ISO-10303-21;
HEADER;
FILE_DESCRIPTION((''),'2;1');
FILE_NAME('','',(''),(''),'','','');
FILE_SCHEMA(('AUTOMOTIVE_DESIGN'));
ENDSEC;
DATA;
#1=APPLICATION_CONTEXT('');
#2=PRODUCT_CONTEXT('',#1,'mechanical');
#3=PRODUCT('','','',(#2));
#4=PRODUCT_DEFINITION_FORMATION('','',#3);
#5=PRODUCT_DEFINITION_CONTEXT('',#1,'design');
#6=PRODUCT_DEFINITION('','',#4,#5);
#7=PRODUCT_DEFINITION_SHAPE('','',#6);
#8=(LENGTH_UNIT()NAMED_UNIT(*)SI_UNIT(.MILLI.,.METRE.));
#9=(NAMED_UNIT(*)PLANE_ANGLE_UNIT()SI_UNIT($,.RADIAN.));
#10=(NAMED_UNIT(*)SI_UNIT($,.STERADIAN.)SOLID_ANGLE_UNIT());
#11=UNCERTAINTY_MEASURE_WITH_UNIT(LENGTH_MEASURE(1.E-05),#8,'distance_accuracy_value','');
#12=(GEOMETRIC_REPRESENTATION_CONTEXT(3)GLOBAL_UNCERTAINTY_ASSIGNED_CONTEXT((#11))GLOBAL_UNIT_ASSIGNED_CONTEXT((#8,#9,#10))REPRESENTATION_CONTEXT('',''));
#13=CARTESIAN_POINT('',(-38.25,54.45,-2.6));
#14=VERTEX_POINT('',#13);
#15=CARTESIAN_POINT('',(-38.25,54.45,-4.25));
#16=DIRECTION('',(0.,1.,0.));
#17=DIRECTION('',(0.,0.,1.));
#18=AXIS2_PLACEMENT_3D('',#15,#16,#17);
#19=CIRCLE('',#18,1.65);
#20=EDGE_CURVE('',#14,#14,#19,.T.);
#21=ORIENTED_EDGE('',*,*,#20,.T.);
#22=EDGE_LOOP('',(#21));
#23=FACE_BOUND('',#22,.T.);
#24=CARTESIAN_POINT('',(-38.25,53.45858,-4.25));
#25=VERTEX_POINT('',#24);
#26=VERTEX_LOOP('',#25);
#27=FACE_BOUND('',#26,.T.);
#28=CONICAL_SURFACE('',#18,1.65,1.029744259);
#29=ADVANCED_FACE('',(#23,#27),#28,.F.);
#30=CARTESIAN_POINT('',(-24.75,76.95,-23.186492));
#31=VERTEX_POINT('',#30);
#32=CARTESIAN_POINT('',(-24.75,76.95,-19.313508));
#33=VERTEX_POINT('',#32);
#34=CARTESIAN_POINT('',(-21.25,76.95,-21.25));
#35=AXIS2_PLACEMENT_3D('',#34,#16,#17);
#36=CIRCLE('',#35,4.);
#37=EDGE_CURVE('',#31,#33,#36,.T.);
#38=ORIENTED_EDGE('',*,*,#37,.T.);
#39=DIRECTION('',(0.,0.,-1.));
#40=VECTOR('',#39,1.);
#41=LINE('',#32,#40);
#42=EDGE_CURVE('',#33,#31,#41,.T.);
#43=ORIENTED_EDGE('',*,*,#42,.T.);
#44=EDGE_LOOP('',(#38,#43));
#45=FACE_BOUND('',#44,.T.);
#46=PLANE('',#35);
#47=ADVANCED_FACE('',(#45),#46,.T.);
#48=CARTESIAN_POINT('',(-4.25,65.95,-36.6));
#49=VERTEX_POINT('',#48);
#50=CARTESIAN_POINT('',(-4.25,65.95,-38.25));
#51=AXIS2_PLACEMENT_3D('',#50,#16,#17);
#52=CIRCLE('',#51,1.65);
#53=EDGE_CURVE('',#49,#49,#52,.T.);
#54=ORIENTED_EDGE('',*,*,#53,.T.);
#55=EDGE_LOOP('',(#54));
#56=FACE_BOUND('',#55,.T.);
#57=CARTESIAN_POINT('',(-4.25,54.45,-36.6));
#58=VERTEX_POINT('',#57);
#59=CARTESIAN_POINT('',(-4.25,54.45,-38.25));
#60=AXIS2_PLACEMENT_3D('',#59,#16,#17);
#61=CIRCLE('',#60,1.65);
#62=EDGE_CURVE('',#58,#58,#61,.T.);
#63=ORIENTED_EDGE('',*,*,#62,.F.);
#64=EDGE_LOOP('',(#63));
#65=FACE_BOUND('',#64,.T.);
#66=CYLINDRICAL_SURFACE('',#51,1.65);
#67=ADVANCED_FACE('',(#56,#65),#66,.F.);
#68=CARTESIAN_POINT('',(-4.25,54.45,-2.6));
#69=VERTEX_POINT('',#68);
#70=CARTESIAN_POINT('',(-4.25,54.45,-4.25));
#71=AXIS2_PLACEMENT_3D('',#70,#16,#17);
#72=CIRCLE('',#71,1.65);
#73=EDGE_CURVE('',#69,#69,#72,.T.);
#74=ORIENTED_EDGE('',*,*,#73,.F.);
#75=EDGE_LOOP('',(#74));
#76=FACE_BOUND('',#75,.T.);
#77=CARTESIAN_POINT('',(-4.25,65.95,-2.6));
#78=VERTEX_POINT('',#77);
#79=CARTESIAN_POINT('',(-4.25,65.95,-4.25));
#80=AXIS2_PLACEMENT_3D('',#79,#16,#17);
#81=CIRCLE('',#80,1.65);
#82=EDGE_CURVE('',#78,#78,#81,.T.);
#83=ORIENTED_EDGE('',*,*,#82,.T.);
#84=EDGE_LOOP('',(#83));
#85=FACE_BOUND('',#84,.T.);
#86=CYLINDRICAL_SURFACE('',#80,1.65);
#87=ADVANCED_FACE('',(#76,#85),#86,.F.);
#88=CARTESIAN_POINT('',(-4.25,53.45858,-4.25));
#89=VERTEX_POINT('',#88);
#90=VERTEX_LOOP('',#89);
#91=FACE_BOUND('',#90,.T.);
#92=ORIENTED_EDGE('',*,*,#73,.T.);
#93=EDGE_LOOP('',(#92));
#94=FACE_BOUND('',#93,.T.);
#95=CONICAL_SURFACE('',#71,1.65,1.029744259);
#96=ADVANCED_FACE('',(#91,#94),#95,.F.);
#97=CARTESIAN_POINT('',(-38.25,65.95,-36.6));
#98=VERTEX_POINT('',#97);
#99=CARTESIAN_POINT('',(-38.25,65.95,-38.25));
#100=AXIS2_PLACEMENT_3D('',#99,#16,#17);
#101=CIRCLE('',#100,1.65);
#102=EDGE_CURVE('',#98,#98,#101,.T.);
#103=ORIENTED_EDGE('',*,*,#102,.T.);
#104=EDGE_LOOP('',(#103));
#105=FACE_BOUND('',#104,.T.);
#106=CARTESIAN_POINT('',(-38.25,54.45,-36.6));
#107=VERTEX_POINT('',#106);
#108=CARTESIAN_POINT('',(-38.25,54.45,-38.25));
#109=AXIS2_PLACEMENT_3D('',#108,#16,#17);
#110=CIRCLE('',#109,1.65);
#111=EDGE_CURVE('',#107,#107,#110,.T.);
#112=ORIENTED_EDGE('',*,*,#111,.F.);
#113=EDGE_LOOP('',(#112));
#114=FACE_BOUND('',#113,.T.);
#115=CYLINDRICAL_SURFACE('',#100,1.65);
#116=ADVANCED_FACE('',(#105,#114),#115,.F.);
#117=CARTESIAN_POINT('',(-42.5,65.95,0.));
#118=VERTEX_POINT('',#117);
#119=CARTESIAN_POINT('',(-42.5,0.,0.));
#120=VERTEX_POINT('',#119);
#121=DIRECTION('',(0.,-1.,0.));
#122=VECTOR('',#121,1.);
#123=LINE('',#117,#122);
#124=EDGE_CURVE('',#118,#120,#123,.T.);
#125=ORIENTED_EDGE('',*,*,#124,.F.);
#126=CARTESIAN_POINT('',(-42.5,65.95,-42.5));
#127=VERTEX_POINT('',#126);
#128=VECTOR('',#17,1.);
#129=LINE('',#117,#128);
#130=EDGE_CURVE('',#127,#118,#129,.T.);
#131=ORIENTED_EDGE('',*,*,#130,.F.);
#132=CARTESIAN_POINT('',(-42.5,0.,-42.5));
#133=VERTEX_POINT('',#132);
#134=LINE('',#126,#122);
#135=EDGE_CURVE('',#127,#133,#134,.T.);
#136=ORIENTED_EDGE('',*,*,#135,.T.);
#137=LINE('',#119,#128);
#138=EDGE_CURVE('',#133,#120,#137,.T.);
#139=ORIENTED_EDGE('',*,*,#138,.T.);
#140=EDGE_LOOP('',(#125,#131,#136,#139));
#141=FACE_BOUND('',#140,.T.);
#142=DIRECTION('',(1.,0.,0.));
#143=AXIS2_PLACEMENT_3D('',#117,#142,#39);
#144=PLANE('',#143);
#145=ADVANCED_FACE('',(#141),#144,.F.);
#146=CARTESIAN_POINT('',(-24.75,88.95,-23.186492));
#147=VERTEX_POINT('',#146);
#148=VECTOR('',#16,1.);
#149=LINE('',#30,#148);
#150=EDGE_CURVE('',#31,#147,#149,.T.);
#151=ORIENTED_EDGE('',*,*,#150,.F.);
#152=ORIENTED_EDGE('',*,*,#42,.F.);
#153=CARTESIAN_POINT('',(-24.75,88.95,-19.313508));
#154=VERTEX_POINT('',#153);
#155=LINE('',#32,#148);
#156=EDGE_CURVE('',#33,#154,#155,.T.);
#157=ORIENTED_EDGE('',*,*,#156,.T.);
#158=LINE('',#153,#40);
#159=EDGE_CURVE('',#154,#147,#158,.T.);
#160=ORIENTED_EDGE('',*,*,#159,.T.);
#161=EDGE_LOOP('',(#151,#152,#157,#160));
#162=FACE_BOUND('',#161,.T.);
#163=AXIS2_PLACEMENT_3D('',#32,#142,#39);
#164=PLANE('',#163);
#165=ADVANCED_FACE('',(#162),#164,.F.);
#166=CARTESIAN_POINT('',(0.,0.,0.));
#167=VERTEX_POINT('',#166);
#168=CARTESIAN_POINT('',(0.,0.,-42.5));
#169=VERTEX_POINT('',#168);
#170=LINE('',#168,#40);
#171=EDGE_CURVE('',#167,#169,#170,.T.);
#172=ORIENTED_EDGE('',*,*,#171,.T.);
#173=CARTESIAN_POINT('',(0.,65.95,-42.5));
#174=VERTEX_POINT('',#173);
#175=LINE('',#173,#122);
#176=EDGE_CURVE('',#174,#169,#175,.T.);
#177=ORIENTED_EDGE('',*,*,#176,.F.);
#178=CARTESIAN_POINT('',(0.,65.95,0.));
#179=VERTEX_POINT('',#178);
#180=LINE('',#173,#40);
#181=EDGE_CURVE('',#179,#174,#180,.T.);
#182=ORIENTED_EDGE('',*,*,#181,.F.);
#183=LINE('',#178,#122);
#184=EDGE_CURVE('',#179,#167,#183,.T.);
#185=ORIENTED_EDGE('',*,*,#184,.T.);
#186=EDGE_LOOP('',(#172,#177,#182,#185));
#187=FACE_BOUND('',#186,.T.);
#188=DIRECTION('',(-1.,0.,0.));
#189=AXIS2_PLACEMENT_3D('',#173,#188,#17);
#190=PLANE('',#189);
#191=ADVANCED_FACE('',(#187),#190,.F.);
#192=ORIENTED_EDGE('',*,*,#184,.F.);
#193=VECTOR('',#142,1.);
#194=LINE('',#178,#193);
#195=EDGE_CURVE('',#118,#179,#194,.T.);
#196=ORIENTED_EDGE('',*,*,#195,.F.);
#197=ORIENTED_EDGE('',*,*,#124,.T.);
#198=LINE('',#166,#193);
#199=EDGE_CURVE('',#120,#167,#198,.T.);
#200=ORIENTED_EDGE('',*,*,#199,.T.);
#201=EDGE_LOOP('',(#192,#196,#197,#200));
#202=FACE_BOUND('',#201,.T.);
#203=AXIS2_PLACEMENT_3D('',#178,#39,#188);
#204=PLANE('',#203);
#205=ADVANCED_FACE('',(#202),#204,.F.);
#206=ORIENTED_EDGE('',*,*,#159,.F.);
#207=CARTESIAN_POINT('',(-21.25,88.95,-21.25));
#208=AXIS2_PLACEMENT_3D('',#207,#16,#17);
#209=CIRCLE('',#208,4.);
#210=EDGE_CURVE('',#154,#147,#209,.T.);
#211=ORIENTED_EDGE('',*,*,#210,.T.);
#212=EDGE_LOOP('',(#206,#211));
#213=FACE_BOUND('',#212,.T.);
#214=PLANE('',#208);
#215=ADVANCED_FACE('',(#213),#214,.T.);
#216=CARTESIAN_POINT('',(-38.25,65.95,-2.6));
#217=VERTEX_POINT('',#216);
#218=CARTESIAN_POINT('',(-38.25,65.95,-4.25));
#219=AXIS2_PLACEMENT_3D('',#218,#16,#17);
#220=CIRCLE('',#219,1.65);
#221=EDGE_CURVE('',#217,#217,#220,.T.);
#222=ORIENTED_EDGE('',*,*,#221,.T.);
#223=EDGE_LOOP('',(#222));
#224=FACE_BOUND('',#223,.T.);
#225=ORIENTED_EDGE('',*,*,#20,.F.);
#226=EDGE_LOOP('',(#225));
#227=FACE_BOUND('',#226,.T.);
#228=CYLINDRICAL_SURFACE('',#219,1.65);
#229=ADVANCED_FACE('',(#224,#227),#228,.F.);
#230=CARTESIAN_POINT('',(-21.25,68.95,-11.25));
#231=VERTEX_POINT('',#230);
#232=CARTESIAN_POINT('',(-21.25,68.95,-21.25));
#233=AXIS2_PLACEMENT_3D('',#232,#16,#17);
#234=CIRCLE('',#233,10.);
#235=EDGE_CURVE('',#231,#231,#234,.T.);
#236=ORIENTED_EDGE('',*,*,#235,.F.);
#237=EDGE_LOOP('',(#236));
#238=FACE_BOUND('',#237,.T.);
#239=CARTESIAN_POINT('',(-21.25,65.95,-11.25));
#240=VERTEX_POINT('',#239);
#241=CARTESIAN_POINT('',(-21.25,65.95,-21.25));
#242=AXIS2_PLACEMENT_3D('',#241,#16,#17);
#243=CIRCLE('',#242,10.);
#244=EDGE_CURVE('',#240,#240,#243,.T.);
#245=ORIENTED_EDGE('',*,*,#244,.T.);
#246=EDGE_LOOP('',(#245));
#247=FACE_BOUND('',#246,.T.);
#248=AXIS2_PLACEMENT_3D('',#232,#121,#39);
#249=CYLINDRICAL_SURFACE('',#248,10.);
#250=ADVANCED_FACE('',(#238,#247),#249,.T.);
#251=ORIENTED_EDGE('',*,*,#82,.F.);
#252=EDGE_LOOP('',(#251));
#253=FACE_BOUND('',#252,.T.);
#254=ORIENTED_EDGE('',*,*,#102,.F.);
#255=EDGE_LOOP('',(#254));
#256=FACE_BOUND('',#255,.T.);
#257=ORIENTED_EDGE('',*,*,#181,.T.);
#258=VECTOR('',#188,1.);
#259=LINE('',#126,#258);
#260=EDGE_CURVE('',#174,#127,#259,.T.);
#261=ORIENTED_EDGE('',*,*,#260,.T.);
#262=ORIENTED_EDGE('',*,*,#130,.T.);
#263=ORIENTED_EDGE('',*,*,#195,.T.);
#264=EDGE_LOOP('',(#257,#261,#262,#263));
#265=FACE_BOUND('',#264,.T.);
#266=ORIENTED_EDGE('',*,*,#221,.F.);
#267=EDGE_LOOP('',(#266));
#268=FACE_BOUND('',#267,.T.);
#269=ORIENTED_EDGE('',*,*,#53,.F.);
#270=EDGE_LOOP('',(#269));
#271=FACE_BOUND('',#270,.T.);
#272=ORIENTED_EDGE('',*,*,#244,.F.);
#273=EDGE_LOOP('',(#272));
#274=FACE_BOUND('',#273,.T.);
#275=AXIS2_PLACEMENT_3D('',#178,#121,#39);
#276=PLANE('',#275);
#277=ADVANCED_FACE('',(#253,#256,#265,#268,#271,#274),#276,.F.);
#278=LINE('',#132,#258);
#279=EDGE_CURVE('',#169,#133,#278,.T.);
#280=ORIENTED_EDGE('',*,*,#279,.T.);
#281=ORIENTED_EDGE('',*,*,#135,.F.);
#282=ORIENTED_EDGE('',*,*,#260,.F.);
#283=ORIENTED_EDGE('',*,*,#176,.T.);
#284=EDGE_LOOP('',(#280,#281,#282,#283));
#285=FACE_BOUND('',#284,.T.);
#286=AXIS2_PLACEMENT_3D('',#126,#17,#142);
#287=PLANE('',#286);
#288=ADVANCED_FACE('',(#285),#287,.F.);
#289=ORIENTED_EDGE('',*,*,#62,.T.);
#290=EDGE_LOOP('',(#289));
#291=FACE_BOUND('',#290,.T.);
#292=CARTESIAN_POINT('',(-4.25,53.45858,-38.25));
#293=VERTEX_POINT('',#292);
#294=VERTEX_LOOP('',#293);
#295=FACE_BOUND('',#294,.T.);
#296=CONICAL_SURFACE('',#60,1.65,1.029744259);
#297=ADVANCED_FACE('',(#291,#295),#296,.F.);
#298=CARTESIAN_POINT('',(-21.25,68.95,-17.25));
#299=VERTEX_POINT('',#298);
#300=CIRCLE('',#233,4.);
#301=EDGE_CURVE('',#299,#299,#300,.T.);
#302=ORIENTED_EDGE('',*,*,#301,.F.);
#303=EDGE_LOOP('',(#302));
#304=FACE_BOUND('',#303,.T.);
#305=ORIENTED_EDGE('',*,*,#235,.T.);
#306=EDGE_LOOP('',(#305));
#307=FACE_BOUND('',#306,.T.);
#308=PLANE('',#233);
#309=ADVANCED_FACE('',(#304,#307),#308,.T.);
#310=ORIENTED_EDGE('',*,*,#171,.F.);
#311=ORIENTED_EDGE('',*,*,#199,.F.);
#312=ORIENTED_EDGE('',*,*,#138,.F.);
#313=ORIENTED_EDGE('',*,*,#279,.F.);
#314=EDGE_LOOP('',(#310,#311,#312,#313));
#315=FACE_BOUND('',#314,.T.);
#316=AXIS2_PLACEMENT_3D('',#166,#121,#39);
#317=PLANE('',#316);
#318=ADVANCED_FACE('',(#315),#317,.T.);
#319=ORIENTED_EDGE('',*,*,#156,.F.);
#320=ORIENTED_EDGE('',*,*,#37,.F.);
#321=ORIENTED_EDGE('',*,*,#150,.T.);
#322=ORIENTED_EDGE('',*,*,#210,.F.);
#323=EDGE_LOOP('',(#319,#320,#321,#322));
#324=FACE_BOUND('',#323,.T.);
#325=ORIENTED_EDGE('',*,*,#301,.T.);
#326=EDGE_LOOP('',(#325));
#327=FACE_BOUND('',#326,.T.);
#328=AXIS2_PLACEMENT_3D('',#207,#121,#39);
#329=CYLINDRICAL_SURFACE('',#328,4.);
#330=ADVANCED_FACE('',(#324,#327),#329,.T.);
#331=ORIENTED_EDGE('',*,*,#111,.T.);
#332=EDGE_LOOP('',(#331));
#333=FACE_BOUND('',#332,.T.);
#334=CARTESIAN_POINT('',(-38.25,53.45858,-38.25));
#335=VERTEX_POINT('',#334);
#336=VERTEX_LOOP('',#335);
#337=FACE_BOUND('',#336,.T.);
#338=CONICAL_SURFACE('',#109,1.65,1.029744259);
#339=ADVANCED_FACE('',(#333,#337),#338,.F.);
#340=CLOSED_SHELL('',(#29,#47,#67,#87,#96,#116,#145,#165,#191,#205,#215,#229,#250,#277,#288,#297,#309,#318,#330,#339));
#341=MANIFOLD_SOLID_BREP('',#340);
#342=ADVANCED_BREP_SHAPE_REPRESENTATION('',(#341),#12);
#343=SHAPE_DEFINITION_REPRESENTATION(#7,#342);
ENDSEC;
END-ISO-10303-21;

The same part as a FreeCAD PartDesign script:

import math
import FreeCAD as App
import Part
import Sketcher
Q = App.Units.Quantity


def add_polygon(sketch, points):
    """Adds a closed chain of lines whose ends are joined by coincident constraints."""
    first, n = sketch.GeometryCount, len(points)
    for a, b in zip(points, points[1:] + points[:1]):
        sketch.addGeometry(Part.LineSegment(App.Vector(*a, 0), App.Vector(*b, 0)), False)
    for i in range(n):
        sketch.addConstraint(Sketcher.Constraint("Coincident", first + i, 2, first + (i + 1) % n, 1))

doc = App.newDocument("Part")
body = doc.addObject("PartDesign::Body", "Body")

# Sketch on XZ plane
sketch1 = body.newObject("Sketcher::SketchObject", "Sketch")
sketch1.AttachmentSupport = (doc.getObject("XZ_Plane"), [""])
sketch1.MapMode = "FlatFace"
add_polygon(sketch1, [(0, 0), (0, -42), (-42, -42), (-42, 0)])  # lines 0-3
sketch1.addConstraint(Sketcher.Constraint("Vertical", 0))
sketch1.addConstraint(Sketcher.Constraint("Horizontal", 1))
sketch1.addConstraint(Sketcher.Constraint("Vertical", 2))
sketch1.addConstraint(Sketcher.Constraint("Horizontal", 3))
sketch1.addConstraint(Sketcher.Constraint("Coincident", 3, 2, -1, 1))
sketch1.addConstraint(Sketcher.Constraint("Equal", 3, 0))
sketch1.addConstraint(Sketcher.Constraint("DistanceX", 1, 2, 1, 1, Q("42.5 mm")))
pad1 = body.newObject("PartDesign::Pad", "Pad")
pad1.Profile = sketch1
pad1.Length = 65.95
pad1.Reversed = True

# Sketch on XZ plane
sketch2 = body.newObject("Sketcher::SketchObject", "Sketch001")
sketch2.AttachmentSupport = (doc.getObject("XZ_Plane"), [""])
sketch2.MapMode = "FlatFace"
sketch2.AttachmentOffset = App.Placement(App.Vector(0, 0, -65.95), App.Rotation())
sketch2.addGeometry(Part.Circle(App.Vector(-21, -21, 0), App.Vector(0, 0, 1), 10), False)
sketch2.addConstraint(Sketcher.Constraint("Diameter", 0, Q("20 mm")))
sketch2.addConstraint(Sketcher.Constraint("DistanceX", 0, 3, -1, 1, Q("21.25 mm")))
sketch2.addConstraint(Sketcher.Constraint("DistanceY", 0, 3, -1, 1, Q("21.25 mm")))
pad2 = body.newObject("PartDesign::Pad", "Pad001")
pad2.Profile = sketch2
pad2.Length = 3
pad2.Reversed = True

# Sketch on XZ plane
sketch3 = body.newObject("Sketcher::SketchObject", "Sketch002")
sketch3.AttachmentSupport = (doc.getObject("XZ_Plane"), [""])
sketch3.MapMode = "FlatFace"
sketch3.AttachmentOffset = App.Placement(App.Vector(0, 0, -68.95), App.Rotation())
sketch3.addGeometry(Part.Circle(App.Vector(-21.2, -21.2, 0), App.Vector(0, 0, 1), 4), False)
sketch3.addConstraint(Sketcher.Constraint("Diameter", 0, Q("8 mm")))
sketch3.addConstraint(Sketcher.Constraint("DistanceX", 0, 3, -1, 1, Q("21.25 mm")))
sketch3.addConstraint(Sketcher.Constraint("DistanceY", 0, 3, -1, 1, Q("21.25 mm")))
pad3 = body.newObject("PartDesign::Pad", "Pad002")
pad3.Profile = sketch3
pad3.Length = 20
pad3.Reversed = True

# Sketch on XZ plane
sketch4 = body.newObject("Sketcher::SketchObject", "Sketch003")
sketch4.AttachmentSupport = (doc.getObject("XZ_Plane"), [""])
sketch4.MapMode = "FlatFace"
sketch4.AttachmentOffset = App.Placement(App.Vector(0, 0, -65.95), App.Rotation())
sketch4.addGeometry(Part.Circle(App.Vector(-4.2, -38.2, 0), App.Vector(0, 0, 1), 1.6), False)
sketch4.addGeometry(Part.Circle(App.Vector(-4.2, -4.2, 0), App.Vector(0, 0, 1), 1.6), False)
sketch4.addGeometry(Part.Circle(App.Vector(-38.2, -4.2, 0), App.Vector(0, 0, 1), 1.6), False)
sketch4.addGeometry(Part.Circle(App.Vector(-38.2, -38.2, 0), App.Vector(0, 0, 1), 1.6), False)
sketch4.addConstraint(Sketcher.Constraint("Equal", 0, 1))
sketch4.addConstraint(Sketcher.Constraint("Equal", 1, 2))
sketch4.addConstraint(Sketcher.Constraint("Equal", 2, 3))
sketch4.addConstraint(Sketcher.Constraint("Horizontal", 1, 3, 2, 3))
sketch4.addConstraint(Sketcher.Constraint("Horizontal", 0, 3, 3, 3))
sketch4.addConstraint(Sketcher.Constraint("Vertical", 0, 3, 1, 3))
sketch4.addConstraint(Sketcher.Constraint("Vertical", 2, 3, 3, 3))
sketch4.addConstraint(Sketcher.Constraint("Diameter", 0, Q("3.3 mm")))
sketch4.addConstraint(Sketcher.Constraint("DistanceY", 0, 3, 1, 3, Q("34 mm")))
sketch4.addConstraint(Sketcher.Constraint("DistanceX", 2, 3, 1, 3, Q("34 mm")))
sketch4.addConstraint(Sketcher.Constraint("DistanceX", 0, 3, -1, 1, Q("4.25 mm")))
sketch4.addConstraint(Sketcher.Constraint("DistanceY", 0, 3, -1, 1, Q("38.25 mm")))
doc.recompute()
hole = body.newObject("PartDesign::Hole", "Hole")
hole.Profile = sketch4
hole.ThreadType = "None"
hole.Diameter = 3.3
hole.DepthType = "Dimension"
hole.Depth = 11.5
hole.DrillPoint = "Angled"
hole.DrillPointAngle = 118
hole.Reversed = True

# Sketch on XZ plane
sketch5 = body.newObject("Sketcher::SketchObject", "Sketch004")
sketch5.AttachmentSupport = (doc.getObject("XZ_Plane"), [""])
sketch5.MapMode = "FlatFace"
sketch5.AttachmentOffset = App.Placement(App.Vector(0, 0, -88.95), App.Rotation())
sketch5.addGeometry(Part.LineSegment(App.Vector(-24.8, -19.3, 0), App.Vector(-24.8, -23.2, 0)), False)
sketch5.addGeometry(Part.ArcOfCircle(Part.Circle(App.Vector(-21.2, -21.2, 0), App.Vector(0, 0, 1), 4), math.radians(151), math.radians(209)), False)
sketch5.addConstraint(Sketcher.Constraint("Coincident", 0, 1, 1, 1))
sketch5.addConstraint(Sketcher.Constraint("Coincident", 1, 2, 0, 2))
sketch5.addConstraint(Sketcher.Constraint("Vertical", 0))
sketch5.addConstraint(Sketcher.Constraint("Radius", 1, Q("4 mm")))
sketch5.addConstraint(Sketcher.Constraint("DistanceX", 0, 1, 1, 3, Q("3.5 mm")))
sketch5.addConstraint(Sketcher.Constraint("DistanceX", 1, 3, -1, 1, Q("21.25 mm")))
sketch5.addConstraint(Sketcher.Constraint("DistanceY", 1, 3, -1, 1, Q("21.25 mm")))
pocket1 = body.newObject("PartDesign::Pocket", "Pocket")
pocket1.Profile = sketch5
pocket1.Length = 12
pocket1.Reversed = True

doc.recompute()
